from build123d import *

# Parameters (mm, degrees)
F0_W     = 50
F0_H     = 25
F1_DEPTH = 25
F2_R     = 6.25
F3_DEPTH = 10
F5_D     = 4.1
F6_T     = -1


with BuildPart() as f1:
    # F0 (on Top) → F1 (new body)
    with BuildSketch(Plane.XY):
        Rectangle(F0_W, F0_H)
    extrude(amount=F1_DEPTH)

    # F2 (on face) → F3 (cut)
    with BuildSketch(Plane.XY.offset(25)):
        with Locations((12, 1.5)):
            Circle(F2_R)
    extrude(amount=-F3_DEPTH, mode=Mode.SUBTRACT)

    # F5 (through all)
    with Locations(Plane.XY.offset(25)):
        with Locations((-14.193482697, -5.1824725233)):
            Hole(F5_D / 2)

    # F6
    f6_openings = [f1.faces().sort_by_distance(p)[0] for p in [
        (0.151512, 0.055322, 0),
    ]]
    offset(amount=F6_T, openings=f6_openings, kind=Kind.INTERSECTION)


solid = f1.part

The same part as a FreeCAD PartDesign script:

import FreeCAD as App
import Part
import Sketcher
from FreeCAD import Vector


def faces_at(feature, points):
    """Names of the faces that lie closest to the given points."""
    faces = feature.Shape.Faces
    near = lambda p: min(range(len(faces)), key=lambda i: faces[i].distToShape(Part.Vertex(*p))[0])
    return sorted({f"Face{near(p) + 1}" for p in points})

doc = App.newDocument("Part")
params = doc.addObject("Spreadsheet::Sheet", "Params")
for row, (alias, value) in enumerate([
    ("sketch1_width", "50 mm"),
    ("sketch1_height", "25 mm"),
    ("pad1_length", "25 mm"),
    ("sketch2_diameter", "12.5 mm"),
    ("pocket1_length", "10 mm"),
    ("sketch3_diameter", "4.1 mm"),
    ("hole_diameter", "4.1 mm"),
    ("thickness_wall", "1 mm"),
], start=1):
    params.set(f"A{row}", alias)
    params.set(f"B{row}", "=" + value)
    params.setAlias(f"B{row}", alias)

body = doc.addObject("PartDesign::Body", "Body")

sketch1 = doc.addObject("Sketcher::SketchObject", "Sketch")
body.addObject(sketch1)
sketch1.AttachmentSupport = (doc.XY_Plane, [""])
sketch1.MapMode = "FlatFace"
sketch1.addGeometry(Part.LineSegment(Vector(-25, 12, 0), Vector(-25, -12, 0)), False)
sketch1.addGeometry(Part.LineSegment(Vector(-25, -12, 0), Vector(25, -12, 0)), False)
sketch1.addGeometry(Part.LineSegment(Vector(25, -12, 0), Vector(25, 12, 0)), False)
sketch1.addGeometry(Part.LineSegment(Vector(25, 12, 0), Vector(-25, 12, 0)), False)
sketch1.addConstraint(Sketcher.Constraint("Coincident", 0, 2, 1, 1))
sketch1.addConstraint(Sketcher.Constraint("Coincident", 1, 2, 2, 1))
sketch1.addConstraint(Sketcher.Constraint("Coincident", 2, 2, 3, 1))
sketch1.addConstraint(Sketcher.Constraint("Coincident", 3, 2, 0, 1))
sketch1.addConstraint(Sketcher.Constraint("Vertical", 0))
sketch1.addConstraint(Sketcher.Constraint("Horizontal", 1))
sketch1.addConstraint(Sketcher.Constraint("Vertical", 2))
sketch1.addConstraint(Sketcher.Constraint("Horizontal", 3))
sketch1.addConstraint(Sketcher.Constraint("Symmetric", 0, 2, 2, 2, -1, 1))
sketch1.addConstraint(Sketcher.Constraint("DistanceX", 1, 1, 1, 2, 50.0))
sketch1.addConstraint(Sketcher.Constraint("DistanceY", 0, 2, 0, 1, 25.0))
sketch1.setExpression("Constraints[9]", "Params.sketch1_width")
sketch1.setExpression("Constraints[10]", "Params.sketch1_height")
pad1 = doc.addObject("PartDesign::Pad", "Pad")
body.addObject(pad1)
pad1.Profile = sketch1
pad1.setExpression("Length", "Params.pad1_length")

sketch2 = doc.addObject("Sketcher::SketchObject", "Sketch001")
body.addObject(sketch2)
sketch2.AttachmentSupport = (doc.XY_Plane, [""])
sketch2.MapMode = "FlatFace"
sketch2.AttachmentOffset = App.Placement(Vector(0, 0, 25), App.Rotation())
sketch2.addGeometry(Part.Circle(Vector(12, 2, 0), Vector(0, 0, 1), 6), False)
sketch2.addConstraint(Sketcher.Constraint("Diameter", 0, 12.5))
sketch2.addConstraint(Sketcher.Constraint("DistanceX", -1, 1, 0, 3, 12.0))
sketch2.addConstraint(Sketcher.Constraint("DistanceY", -1, 1, 0, 3, 1.5))
sketch2.setExpression("Constraints[0]", "Params.sketch2_diameter")
pocket1 = doc.addObject("PartDesign::Pocket", "Pocket")
body.addObject(pocket1)
pocket1.Profile = sketch2
pocket1.setExpression("Length", "Params.pocket1_length")

sketch3 = doc.addObject("Sketcher::SketchObject", "Sketch002")
body.addObject(sketch3)
sketch3.AttachmentSupport = (doc.XY_Plane, [""])
sketch3.MapMode = "FlatFace"
sketch3.AttachmentOffset = App.Placement(Vector(0, 0, 25), App.Rotation())
sketch3.addGeometry(Part.Circle(Vector(-14.2, -5.2, 0), Vector(0, 0, 1), 2), False)
sketch3.addConstraint(Sketcher.Constraint("Diameter", 0, 4.1))
sketch3.addConstraint(Sketcher.Constraint("DistanceX", 0, 3, -1, 1, 14.193483))
sketch3.addConstraint(Sketcher.Constraint("DistanceY", 0, 3, -1, 1, 5.182473))
sketch3.setExpression("Constraints[0]", "Params.sketch3_diameter")
doc.recompute()
hole = doc.addObject("PartDesign::Hole", "Hole")
body.addObject(hole)
hole.Profile = sketch3
hole.ThreadType = "None"
hole.setExpression("Diameter", "Params.hole_diameter")
hole.DepthType = "ThroughAll"
doc.recompute()

thickness = doc.addObject("PartDesign::Thickness", "Thickness")
body.addObject(thickness)
thickness.Base = (hole, faces_at(hole, [(0, 0, 0)]))
thickness.setExpression("Value", "Params.thickness_wall")
thickness.Reversed = True
thickness.Join = "Intersection"

doc.recompute()
